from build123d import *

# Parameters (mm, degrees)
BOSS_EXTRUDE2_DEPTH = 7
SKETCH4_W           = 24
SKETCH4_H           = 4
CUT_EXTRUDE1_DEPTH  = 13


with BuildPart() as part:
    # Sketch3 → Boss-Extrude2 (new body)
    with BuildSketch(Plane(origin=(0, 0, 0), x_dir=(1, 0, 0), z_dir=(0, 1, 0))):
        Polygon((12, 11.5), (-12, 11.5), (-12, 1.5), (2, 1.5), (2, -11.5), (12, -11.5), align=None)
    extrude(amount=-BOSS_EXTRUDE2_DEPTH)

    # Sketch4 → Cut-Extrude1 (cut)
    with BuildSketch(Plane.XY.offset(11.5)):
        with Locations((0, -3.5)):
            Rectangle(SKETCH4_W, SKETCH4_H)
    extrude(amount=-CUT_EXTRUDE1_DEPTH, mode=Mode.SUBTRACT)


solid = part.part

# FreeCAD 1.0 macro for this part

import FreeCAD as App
import Part
import Sketcher
from FreeCAD import Vector
Q = App.Units.Quantity


def add_polygon(sketch, points):
    """Adds a closed chain of lines whose ends are joined by coincident constraints."""
    first, n = sketch.GeometryCount, len(points)
    for a, b in zip(points, points[1:] + points[:1]):
        sketch.addGeometry(Part.LineSegment(App.Vector(*a, 0), App.Vector(*b, 0)), False)
    for i in range(n):
        sketch.addConstraint(Sketcher.Constraint("Coincident", first + i, 2, first + (i + 1) % n, 1))

doc = App.newDocument("Part")
params = doc.addObject("Spreadsheet::Sheet", "Params")
for row, (alias, value) in enumerate([
    ("sketch1_width", "24 mm"),
    ("sketch1_width2", "14 mm"),
    ("sketch1_height", "13 mm"),
    ("pad1_length", "7 mm"),
    ("sketch2_width", "24 mm"),
    ("sketch2_height", "4 mm"),
    ("pocket1_length", "13 mm"),
], start=1):
    params.set(f"A{row}", alias)
    params.set(f"B{row}", "=" + value)
    params.setAlias(f"B{row}", alias)

body = doc.addObject("PartDesign::Body", "Body")

# Sketch on XZ plane
sketch1 = body.newObject("Sketcher::SketchObject", "Sketch")
sketch1.AttachmentSupport = (doc.getObject("XZ_Plane"), [""])
sketch1.MapMode = "FlatFace"
add_polygon(sketch1, [(12, -12), (-12, -12), (-12, -2), (2, -2), (2, 12), (12, 12)])  # lines 0-5
sketch1.addConstraint(Sketcher.Constraint("Horizontal", 0))
sketch1.addConstraint(Sketcher.Constraint("Vertical", 1))
sketch1.addConstraint(Sketcher.Constraint("Horizontal", 2))
sketch1.addConstraint(Sketcher.Constraint("Vertical", 3))
sketch1.addConstraint(Sketcher.Constraint("Horizontal", 4))
sketch1.addConstraint(Sketcher.Constraint("Vertical", 5))
sketch1.addConstraint(Sketcher.Constraint("Symmetric", 0, 2, 4, 2, -1, 1))
sketch1.addConstraint(Sketcher.Constraint("Equal", 4, 1))
sketch1.addConstraint(Sketcher.Constraint("DistanceX", 0, 2, 0, 1, Q("24 mm")))
sketch1.addConstraint(Sketcher.Constraint("DistanceX", 2, 1, 2, 2, Q("14 mm")))
sketch1.addConstraint(Sketcher.Constraint("DistanceY", 3, 1, 3, 2, Q("13 mm")))
sketch1.setExpression("Constraints[14]", "Params.sketch1_width")
sketch1.setExpression("Constraints[15]", "Params.sketch1_width2")
sketch1.setExpression("Constraints[16]", "Params.sketch1_height")
pad1 = body.newObject("PartDesign::Pad", "Pad")
pad1.Profile = sketch1
pad1.setExpression("Length", "Params.pad1_length")

# Sketch on XY plane
sketch2 = body.newObject("Sketcher::SketchObject", "Sketch001")
sketch2.AttachmentSupport = (doc.getObject("XY_Plane"), [""])
sketch2.MapMode = "FlatFace"
sketch2.AttachmentOffset = App.Placement(Vector(0, 0, 11.5), App.Rotation())
add_polygon(sketch2, [(-12, -1.5), (-12, -5.5), (12, -5.5), (12, -1.5)])  # lines 0-3
sketch2.addConstraint(Sketcher.Constraint("Vertical", 0))
sketch2.addConstraint(Sketcher.Constraint("Horizontal", 1))
sketch2.addConstraint(Sketcher.Constraint("Vertical", 2))
sketch2.addConstraint(Sketcher.Constraint("Horizontal", 3))
sketch2.addConstraint(Sketcher.Constraint("DistanceX", 1, 1, 1, 2, Q("24 mm")))
sketch2.addConstraint(Sketcher.Constraint("DistanceY", 0, 2, 0, 1, Q("4 mm")))
sketch2.addConstraint(Sketcher.Constraint("DistanceX", 0, 2, -1, 1, Q("12 mm")))
sketch2.addConstraint(Sketcher.Constraint("DistanceY", 0, 2, -1, 1, Q("5.5 mm")))
sketch2.setExpression("Constraints[8]", "Params.sketch2_width")
sketch2.setExpression("Constraints[9]", "Params.sketch2_height")
pocket1 = body.newObject("PartDesign::Pocket", "Pocket")
pocket1.Profile = sketch2
pocket1.setExpression("Length", "Params.pocket1_length")

doc.recompute()
